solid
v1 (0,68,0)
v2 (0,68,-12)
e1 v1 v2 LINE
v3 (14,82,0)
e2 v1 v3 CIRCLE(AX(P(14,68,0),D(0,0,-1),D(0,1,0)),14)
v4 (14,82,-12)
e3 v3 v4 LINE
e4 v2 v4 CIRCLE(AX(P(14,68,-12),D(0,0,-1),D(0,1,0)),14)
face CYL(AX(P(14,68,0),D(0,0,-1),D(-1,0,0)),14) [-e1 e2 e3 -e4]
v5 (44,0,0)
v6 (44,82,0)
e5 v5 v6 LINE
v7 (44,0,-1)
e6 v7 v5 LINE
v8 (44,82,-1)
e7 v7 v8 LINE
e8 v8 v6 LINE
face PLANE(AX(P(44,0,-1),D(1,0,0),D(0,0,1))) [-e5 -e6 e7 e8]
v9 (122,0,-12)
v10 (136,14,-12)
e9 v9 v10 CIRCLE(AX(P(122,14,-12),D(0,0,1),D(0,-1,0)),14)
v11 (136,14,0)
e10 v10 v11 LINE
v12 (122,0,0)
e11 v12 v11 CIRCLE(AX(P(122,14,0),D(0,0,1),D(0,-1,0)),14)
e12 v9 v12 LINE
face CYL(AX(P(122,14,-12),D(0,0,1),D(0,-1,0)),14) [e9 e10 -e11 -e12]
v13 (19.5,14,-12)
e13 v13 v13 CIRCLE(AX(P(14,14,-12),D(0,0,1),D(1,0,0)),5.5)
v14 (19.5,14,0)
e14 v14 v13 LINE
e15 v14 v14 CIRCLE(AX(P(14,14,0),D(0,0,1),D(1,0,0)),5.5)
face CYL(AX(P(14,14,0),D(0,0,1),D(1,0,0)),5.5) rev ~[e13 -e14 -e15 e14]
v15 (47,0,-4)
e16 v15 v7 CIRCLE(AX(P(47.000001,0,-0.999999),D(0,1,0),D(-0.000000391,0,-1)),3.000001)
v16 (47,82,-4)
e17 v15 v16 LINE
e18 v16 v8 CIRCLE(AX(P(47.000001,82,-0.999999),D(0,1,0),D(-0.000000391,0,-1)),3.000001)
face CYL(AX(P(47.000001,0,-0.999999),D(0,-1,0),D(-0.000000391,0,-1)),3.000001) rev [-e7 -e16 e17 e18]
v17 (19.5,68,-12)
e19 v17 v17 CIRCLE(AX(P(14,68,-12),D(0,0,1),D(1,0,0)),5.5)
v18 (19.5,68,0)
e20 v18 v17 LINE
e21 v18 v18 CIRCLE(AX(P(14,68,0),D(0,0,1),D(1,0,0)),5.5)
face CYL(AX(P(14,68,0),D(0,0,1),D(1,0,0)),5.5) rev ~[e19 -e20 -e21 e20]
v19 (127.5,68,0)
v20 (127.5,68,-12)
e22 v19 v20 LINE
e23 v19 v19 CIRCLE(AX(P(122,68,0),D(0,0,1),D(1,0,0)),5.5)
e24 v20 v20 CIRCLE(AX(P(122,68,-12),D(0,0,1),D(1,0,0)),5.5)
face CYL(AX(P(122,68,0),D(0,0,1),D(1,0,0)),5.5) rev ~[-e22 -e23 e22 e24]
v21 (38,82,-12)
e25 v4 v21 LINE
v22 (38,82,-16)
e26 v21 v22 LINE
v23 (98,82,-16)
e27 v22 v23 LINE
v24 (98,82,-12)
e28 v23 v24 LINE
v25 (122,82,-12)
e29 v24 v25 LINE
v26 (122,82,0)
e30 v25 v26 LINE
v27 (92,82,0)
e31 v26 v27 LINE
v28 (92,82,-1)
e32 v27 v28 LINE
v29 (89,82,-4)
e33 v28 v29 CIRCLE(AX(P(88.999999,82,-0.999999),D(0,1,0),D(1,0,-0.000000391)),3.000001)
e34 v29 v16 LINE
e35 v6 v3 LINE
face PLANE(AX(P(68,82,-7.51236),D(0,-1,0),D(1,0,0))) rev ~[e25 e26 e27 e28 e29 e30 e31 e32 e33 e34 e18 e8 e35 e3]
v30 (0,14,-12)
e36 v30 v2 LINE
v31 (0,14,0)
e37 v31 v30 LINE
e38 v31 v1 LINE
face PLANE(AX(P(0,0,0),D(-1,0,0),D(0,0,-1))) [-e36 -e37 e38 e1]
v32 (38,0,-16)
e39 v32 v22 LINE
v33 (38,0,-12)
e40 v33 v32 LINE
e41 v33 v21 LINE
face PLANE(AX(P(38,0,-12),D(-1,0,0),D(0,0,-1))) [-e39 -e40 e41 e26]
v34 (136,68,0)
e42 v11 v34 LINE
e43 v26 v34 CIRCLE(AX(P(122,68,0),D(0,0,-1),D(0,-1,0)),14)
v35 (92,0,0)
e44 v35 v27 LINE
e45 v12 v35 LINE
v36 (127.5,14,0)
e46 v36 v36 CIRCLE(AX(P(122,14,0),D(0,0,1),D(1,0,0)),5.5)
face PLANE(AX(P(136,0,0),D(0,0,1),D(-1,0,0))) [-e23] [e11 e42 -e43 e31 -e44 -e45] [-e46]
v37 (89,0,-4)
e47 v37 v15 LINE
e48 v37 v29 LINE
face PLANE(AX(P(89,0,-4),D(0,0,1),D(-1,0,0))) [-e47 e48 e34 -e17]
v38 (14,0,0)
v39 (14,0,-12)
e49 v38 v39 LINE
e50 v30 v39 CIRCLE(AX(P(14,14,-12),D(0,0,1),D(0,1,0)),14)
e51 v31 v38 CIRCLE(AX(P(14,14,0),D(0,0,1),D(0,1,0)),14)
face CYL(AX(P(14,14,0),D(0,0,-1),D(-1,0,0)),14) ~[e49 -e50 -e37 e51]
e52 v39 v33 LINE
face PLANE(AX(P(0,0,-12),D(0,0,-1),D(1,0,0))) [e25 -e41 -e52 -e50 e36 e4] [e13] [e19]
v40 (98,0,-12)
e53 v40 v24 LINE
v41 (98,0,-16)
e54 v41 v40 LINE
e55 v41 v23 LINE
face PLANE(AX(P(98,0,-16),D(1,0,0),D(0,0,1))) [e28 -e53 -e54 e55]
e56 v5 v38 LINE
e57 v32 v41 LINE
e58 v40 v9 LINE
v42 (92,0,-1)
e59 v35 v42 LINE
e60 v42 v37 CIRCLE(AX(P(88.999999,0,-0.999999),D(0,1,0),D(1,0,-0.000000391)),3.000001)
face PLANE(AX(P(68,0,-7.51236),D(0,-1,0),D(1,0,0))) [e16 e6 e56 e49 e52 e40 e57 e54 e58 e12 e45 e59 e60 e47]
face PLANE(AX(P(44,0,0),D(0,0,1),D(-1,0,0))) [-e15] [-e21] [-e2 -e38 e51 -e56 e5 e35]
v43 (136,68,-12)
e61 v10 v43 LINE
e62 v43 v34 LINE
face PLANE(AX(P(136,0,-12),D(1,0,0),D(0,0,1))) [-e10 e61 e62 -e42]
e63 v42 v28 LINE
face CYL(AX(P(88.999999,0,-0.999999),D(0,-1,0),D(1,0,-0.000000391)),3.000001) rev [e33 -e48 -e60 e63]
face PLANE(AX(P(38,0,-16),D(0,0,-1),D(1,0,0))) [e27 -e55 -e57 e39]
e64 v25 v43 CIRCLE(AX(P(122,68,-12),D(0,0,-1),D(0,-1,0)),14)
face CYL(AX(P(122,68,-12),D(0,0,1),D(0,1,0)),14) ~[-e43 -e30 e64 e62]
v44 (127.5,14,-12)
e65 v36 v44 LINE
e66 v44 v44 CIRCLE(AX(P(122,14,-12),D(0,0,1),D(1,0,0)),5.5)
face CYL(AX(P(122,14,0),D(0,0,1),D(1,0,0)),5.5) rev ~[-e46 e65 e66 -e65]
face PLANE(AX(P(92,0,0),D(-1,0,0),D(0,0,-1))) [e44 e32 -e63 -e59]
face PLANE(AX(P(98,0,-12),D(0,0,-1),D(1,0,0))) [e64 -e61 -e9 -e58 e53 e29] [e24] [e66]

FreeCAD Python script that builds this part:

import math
import FreeCAD as App
import Part
import Sketcher
from FreeCAD import Vector


def edges_at(feature, points):
    """Names of the edges that pass closest to the given points."""
    edges = feature.Shape.Edges
    near = lambda p: min(range(len(edges)), key=lambda i: edges[i].distToShape(Part.Vertex(*p))[0])
    return sorted({f"Edge{near(p) + 1}" for p in points})

doc = App.newDocument("Part")
body = doc.addObject("PartDesign::Body", "Body")

sketch1 = body.newObject("Sketcher::SketchObject", "Sketch")
sketch1.AttachmentSupport = (doc.getObject("XZ_Plane"), [""])
sketch1.MapMode = "FlatFace"
sketch1.addGeometry(Part.LineSegment(Vector(44, 0, 0), Vector(0, 0, 0)), False)
sketch1.addGeometry(Part.LineSegment(Vector(0, 0, 0), Vector(0, -12, 0)), False)
sketch1.addGeometry(Part.LineSegment(Vector(0, -12, 0), Vector(38, -12, 0)), False)
sketch1.addGeometry(Part.LineSegment(Vector(38, -12, 0), Vector(38, -16, 0)), False)
sketch1.addGeometry(Part.LineSegment(Vector(38, -16, 0), Vector(98, -16, 0)), False)
sketch1.addGeometry(Part.LineSegment(Vector(98, -16, 0), Vector(98, -12, 0)), False)
sketch1.addGeometry(Part.LineSegment(Vector(98, -12, 0), Vector(136, -12, 0)), False)
sketch1.addGeometry(Part.LineSegment(Vector(136, -12, 0), Vector(136, 0, 0)), False)
sketch1.addGeometry(Part.LineSegment(Vector(136, 0, 0), Vector(92, 0, 0)), False)
sketch1.addGeometry(Part.LineSegment(Vector(92, 0, 0), Vector(92, -1, 0)), False)
sketch1.addGeometry(Part.ArcOfCircle(Part.Circle(Vector(88.999999, -0.999999, 0), Vector(0, 0, 1), 3.000001), math.radians(-89.999978), math.radians(-0.000022)), False)
sketch1.addGeometry(Part.LineSegment(Vector(89, -4, 0), Vector(47, -4, 0)), False)
sketch1.addGeometry(Part.ArcOfCircle(Part.Circle(Vector(47.000001, -0.999999, 0), Vector(0, 0, 1), 3.000001), math.radians(-179.999978), math.radians(-90.000022)), False)
sketch1.addGeometry(Part.LineSegment(Vector(44, -1, 0), Vector(44, 0, 0)), False)
sketch1.addConstraint(Sketcher.Constraint("Coincident", 0, 2, 1, 1))
sketch1.addConstraint(Sketcher.Constraint("Coincident", 1, 2, 2, 1))
sketch1.addConstraint(Sketcher.Constraint("Coincident", 2, 2, 3, 1))
sketch1.addConstraint(Sketcher.Constraint("Coincident", 3, 2, 4, 1))
sketch1.addConstraint(Sketcher.Constraint("Coincident", 4, 2, 5, 1))
sketch1.addConstraint(Sketcher.Constraint("Coincident", 5, 2, 6, 1))
sketch1.addConstraint(Sketcher.Constraint("Coincident", 6, 2, 7, 1))
sketch1.addConstraint(Sketcher.Constraint("Coincident", 7, 2, 8, 1))
sketch1.addConstraint(Sketcher.Constraint("Coincident", 8, 2, 9, 1))
sketch1.addConstraint(Sketcher.Constraint("Tangent", 9, 2, 10, 2))
sketch1.addConstraint(Sketcher.Constraint("Tangent", 10, 1, 11, 1))
sketch1.addConstraint(Sketcher.Constraint("Tangent", 11, 2, 12, 2))
sketch1.addConstraint(Sketcher.Constraint("Tangent", 12, 1, 13, 1))
sketch1.addConstraint(Sketcher.Constraint("Coincident", 13, 2, 0, 1))
sketch1.addConstraint(Sketcher.Constraint("Horizontal", 0))
sketch1.addConstraint(Sketcher.Constraint("Vertical", 1))
sketch1.addConstraint(Sketcher.Constraint("Horizontal", 2))
sketch1.addConstraint(Sketcher.Constraint("Vertical", 3))
sketch1.addConstraint(Sketcher.Constraint("Horizontal", 4))
sketch1.addConstraint(Sketcher.Constraint("Vertical", 5))
sketch1.addConstraint(Sketcher.Constraint("Horizontal", 6))
sketch1.addConstraint(Sketcher.Constraint("Vertical", 7))
sketch1.addConstraint(Sketcher.Constraint("Horizontal", 8))
sketch1.addConstraint(Sketcher.Constraint("Vertical", 9))
sketch1.addConstraint(Sketcher.Constraint("Horizontal", 11))
sketch1.addConstraint(Sketcher.Constraint("Vertical", 13))
sketch1.addConstraint(Sketcher.Constraint("Coincident", 0, 2, -1, 1))
sketch1.addConstraint(Sketcher.Constraint("Equal", 10, 12))
sketch1.addConstraint(Sketcher.Constraint("PointOnObject", 7, 2, -1))
sketch1.addConstraint(Sketcher.Constraint("Horizontal", 2, 2, 5, 2))
sketch1.addConstraint(Sketcher.Constraint("Equal", 2, 6))
sketch1.addConstraint(Sketcher.Constraint("Equal", 0, 8))
sketch1.addConstraint(Sketcher.Constraint("Radius", 10, 3.000001))
sketch1.addConstraint(Sketcher.Constraint("DistanceX", 0, 2, 0, 1, 44.0))
sketch1.addConstraint(Sketcher.Constraint("DistanceX", 2, 1, 2, 2, 38.0))
sketch1.addConstraint(Sketcher.Constraint("DistanceX", 4, 1, 4, 2, 60.0))
sketch1.addConstraint(Sketcher.Constraint("DistanceY", 1, 2, 1, 1, 12.0))
sketch1.addConstraint(Sketcher.Constraint("DistanceY", 3, 2, 3, 1, 4.0))
sketch1.addConstraint(Sketcher.Constraint("DistanceY", 9, 2, 9, 1, 1.0))
pad1 = body.newObject("PartDesign::Pad", "Pad")
pad1.Profile = sketch1
pad1.Length = 82
pad1.Reversed = True
doc.recompute()

fillet = body.newObject("PartDesign::Fillet", "Fillet")
fillet.Base = (pad1, edges_at(pad1, [(0, 82, -6)]))
fillet.Radius = 14
doc.recompute()

fillet2 = body.newObject("PartDesign::Fillet", "Fillet001")
fillet2.Base = (fillet, edges_at(fillet, [(0, 0, -6)]))
fillet2.Radius = 14
doc.recompute()

fillet3 = body.newObject("PartDesign::Fillet", "Fillet002")
fillet3.Base = (fillet2, edges_at(fillet2, [(136, 0, -6), (136, 82, -6)]))
fillet3.Radius = 14

sketch2 = body.newObject("Sketcher::SketchObject", "Sketch001")
sketch2.AttachmentSupport = (doc.getObject("XY_Plane"), [""])
sketch2.MapMode = "FlatFace"
sketch2.addGeometry(Part.Circle(Vector(14, 68, 0), Vector(0, 0, 1), 5.5), False)
sketch2.addGeometry(Part.Circle(Vector(14, 14, 0), Vector(0, 0, 1), 5.5), False)
sketch2.addGeometry(Part.Circle(Vector(122, 14, 0), Vector(0, 0, 1), 5.5), False)
sketch2.addGeometry(Part.Circle(Vector(122, 68, 0), Vector(0, 0, 1), 5.5), False)
sketch2.addConstraint(Sketcher.Constraint("Equal", 0, 1))
sketch2.addConstraint(Sketcher.Constraint("Equal", 1, 2))
sketch2.addConstraint(Sketcher.Constraint("Equal", 2, 3))
sketch2.addConstraint(Sketcher.Constraint("Horizontal", 1, 3, 2, 3))
sketch2.addConstraint(Sketcher.Constraint("Horizontal", 0, 3, 3, 3))
sketch2.addConstraint(Sketcher.Constraint("Vertical", 0, 3, 1, 3))
sketch2.addConstraint(Sketcher.Constraint("Vertical", 2, 3, 3, 3))
sketch2.addConstraint(Sketcher.Constraint("Diameter", 0, 11.0))
sketch2.addConstraint(Sketcher.Constraint("DistanceX", -1, 1, 0, 3, 14.0))
sketch2.addConstraint(Sketcher.Constraint("DistanceY", -1, 1, 0, 3, 68.0))
sketch2.addConstraint(Sketcher.Constraint("DistanceY", -1, 1, 1, 3, 14.0))
sketch2.addConstraint(Sketcher.Constraint("DistanceX", -1, 1, 2, 3, 122.0))
pocket1 = body.newObject("PartDesign::Pocket", "Pocket")
pocket1.Profile = sketch2
pocket1.Length = 10000

doc.recompute()
